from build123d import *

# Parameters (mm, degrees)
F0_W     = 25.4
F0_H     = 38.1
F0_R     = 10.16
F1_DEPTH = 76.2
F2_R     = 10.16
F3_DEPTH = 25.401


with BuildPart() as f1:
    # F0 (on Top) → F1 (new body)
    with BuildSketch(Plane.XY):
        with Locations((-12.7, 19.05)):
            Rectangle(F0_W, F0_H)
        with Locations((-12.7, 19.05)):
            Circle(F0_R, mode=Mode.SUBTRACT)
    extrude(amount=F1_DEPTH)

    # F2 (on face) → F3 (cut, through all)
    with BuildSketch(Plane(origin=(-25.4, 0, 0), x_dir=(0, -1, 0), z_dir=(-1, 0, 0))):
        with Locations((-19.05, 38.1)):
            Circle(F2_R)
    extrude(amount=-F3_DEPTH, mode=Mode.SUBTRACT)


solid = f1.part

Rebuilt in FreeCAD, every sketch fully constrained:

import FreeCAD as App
import Part
import Sketcher
Q = App.Units.Quantity


def add_polygon(sketch, points):
    """Adds a closed chain of lines whose ends are joined by coincident constraints."""
    first, n = sketch.GeometryCount, len(points)
    for a, b in zip(points, points[1:] + points[:1]):
        sketch.addGeometry(Part.LineSegment(App.Vector(*a, 0), App.Vector(*b, 0)), False)
    for i in range(n):
        sketch.addConstraint(Sketcher.Constraint("Coincident", first + i, 2, first + (i + 1) % n, 1))

doc = App.newDocument("Part")
body = doc.addObject("PartDesign::Body", "Body")

sketch1 = body.newObject("Sketcher::SketchObject", "Sketch")
sketch1.AttachmentSupport = (doc.getObject("XY_Plane"), [""])
sketch1.MapMode = "FlatFace"
add_polygon(sketch1, [(-25, 38), (-25, 0), (0, 0), (0, 38)])
sketch1.addGeometry(Part.Circle(App.Vector(-13, 19, 0), App.Vector(0, 0, 1), 10), False)
sketch1.addConstraint([
    Sketcher.Constraint("Vertical", 0),
    Sketcher.Constraint("Horizontal", 1),
    Sketcher.Constraint("Vertical", 2),
    Sketcher.Constraint("Horizontal", 3),
    Sketcher.Constraint("Coincident", 1, 2, -1, 1),
    Sketcher.Constraint("Diameter", 4, Q("0.8 in")),
    Sketcher.Constraint("DistanceX", 1, 1, 1, 2, Q("1 in")),
    Sketcher.Constraint("DistanceY", 0, 2, 0, 1, Q("1.5 in")),
    Sketcher.Constraint("DistanceX", 4, 3, -1, 1, Q("0.5 in")),
    Sketcher.Constraint("DistanceY", -1, 1, 4, 3, Q("0.75 in")),
])
pad1 = body.newObject("PartDesign::Pad", "Pad")
pad1.Profile = sketch1
pad1.Length = Q("3 in")

sketch2 = body.newObject("Sketcher::SketchObject", "Sketch001")
sketch2.AttachmentSupport = (doc.getObject("YZ_Plane"), [""])
sketch2.MapMode = "FlatFace"
sketch2.AttachmentOffset = App.Placement(App.Vector(0, 0, -1 * 25.4), App.Rotation())
sketch2.addGeometry(Part.Circle(App.Vector(19, 38, 0), App.Vector(0, 0, 1), 10), False)
sketch2.addConstraint([
    Sketcher.Constraint("Diameter", 0, Q("0.8 in")),
    Sketcher.Constraint("DistanceY", -1, 1, 0, 3, Q("1.5 in")),
    Sketcher.Constraint("DistanceX", -1, 1, 0, 3, Q("0.75 in")),
])
pocket1 = body.newObject("PartDesign::Pocket", "Pocket")
pocket1.Profile = sketch2
pocket1.Type = "ThroughAll"
pocket1.Reversed = True

doc.recompute()
